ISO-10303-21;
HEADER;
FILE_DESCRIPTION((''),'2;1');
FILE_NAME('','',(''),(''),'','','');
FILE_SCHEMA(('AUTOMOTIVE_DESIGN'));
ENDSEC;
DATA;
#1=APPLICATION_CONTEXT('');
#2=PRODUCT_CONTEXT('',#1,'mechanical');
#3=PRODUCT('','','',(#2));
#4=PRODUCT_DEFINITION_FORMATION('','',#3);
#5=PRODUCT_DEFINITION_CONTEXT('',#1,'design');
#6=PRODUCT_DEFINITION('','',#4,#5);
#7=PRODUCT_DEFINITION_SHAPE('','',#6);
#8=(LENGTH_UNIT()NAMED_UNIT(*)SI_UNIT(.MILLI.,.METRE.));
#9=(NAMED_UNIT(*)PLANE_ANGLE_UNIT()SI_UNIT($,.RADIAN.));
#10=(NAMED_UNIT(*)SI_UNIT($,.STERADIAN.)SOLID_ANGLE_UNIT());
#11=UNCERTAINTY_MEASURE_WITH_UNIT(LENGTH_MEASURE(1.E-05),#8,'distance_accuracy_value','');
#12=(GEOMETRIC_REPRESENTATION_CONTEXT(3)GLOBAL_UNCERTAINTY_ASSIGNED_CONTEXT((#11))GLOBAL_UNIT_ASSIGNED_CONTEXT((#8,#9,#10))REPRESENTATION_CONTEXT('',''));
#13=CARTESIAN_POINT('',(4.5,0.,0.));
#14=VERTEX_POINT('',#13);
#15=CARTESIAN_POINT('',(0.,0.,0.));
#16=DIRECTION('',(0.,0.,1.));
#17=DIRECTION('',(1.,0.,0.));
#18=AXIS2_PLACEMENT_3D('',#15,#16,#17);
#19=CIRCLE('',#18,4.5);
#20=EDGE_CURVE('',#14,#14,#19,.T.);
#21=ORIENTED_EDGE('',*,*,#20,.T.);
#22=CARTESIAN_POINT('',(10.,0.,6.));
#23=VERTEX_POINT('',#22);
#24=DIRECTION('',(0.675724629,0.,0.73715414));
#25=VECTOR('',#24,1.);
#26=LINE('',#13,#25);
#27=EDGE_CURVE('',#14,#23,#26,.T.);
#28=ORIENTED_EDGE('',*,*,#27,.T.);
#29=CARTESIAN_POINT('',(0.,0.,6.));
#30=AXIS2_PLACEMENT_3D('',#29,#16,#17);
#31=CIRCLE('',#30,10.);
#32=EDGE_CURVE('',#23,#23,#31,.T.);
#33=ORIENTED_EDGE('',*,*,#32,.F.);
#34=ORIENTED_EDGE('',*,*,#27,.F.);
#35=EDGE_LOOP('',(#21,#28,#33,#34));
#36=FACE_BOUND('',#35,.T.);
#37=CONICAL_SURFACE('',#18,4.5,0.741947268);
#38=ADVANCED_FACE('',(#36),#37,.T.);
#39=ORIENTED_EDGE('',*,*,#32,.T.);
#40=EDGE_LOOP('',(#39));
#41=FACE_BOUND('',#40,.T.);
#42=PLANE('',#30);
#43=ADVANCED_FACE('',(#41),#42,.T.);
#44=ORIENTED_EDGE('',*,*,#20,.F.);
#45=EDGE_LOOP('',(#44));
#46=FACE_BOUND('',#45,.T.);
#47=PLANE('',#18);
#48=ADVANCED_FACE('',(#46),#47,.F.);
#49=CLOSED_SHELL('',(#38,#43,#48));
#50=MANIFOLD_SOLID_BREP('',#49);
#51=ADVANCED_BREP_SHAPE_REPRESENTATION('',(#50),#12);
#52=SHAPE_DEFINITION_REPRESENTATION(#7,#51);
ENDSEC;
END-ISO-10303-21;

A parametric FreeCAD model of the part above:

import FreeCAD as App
import Part
import Sketcher

doc = App.newDocument("Part")
body = doc.addObject("PartDesign::Body", "Body")

sketch1 = body.newObject("Sketcher::SketchObject", "Sketch")
sketch1.AttachmentSupport = (doc.getObject("XZ_Plane"), [""])
sketch1.MapMode = "FlatFace"
sketch1.addGeometry(Part.LineSegment(App.Vector(0, 0, 0), App.Vector(4.5, 0, 0)), False)
sketch1.addGeometry(Part.LineSegment(App.Vector(4.5, 0, 0), App.Vector(10, 6, 0)), False)
sketch1.addGeometry(Part.LineSegment(App.Vector(10, 6, 0), App.Vector(0, 6, 0)), False)
sketch1.addGeometry(Part.LineSegment(App.Vector(0, 6, 0), App.Vector(0, 0, 0)), False)
sketch1.addConstraint(Sketcher.Constraint("Coincident", 0, 2, 1, 1))
sketch1.addConstraint(Sketcher.Constraint("Coincident", 1, 2, 2, 1))
sketch1.addConstraint(Sketcher.Constraint("Coincident", 2, 2, 3, 1))
sketch1.addConstraint(Sketcher.Constraint("Coincident", 3, 2, 0, 1))
sketch1.addConstraint(Sketcher.Constraint("Horizontal", 0))
sketch1.addConstraint(Sketcher.Constraint("Horizontal", 2))
sketch1.addConstraint(Sketcher.Constraint("Vertical", 3))
sketch1.addConstraint(Sketcher.Constraint("Coincident", 3, 2, -1, 1))
sketch1.addConstraint(Sketcher.Constraint("DistanceX", 2, 2, 2, 1, 10.0))
sketch1.addConstraint(Sketcher.Constraint("DistanceY", 3, 2, 3, 1, 6.0))
sketch1.addConstraint(Sketcher.Constraint("DistanceX", 0, 1, 0, 2, 4.5))
revolution = body.newObject("PartDesign::Revolution", "Revolution")
revolution.Profile = sketch1
revolution.ReferenceAxis = (sketch1, ["V_Axis"])
revolution.Angle = 360

doc.recompute()
